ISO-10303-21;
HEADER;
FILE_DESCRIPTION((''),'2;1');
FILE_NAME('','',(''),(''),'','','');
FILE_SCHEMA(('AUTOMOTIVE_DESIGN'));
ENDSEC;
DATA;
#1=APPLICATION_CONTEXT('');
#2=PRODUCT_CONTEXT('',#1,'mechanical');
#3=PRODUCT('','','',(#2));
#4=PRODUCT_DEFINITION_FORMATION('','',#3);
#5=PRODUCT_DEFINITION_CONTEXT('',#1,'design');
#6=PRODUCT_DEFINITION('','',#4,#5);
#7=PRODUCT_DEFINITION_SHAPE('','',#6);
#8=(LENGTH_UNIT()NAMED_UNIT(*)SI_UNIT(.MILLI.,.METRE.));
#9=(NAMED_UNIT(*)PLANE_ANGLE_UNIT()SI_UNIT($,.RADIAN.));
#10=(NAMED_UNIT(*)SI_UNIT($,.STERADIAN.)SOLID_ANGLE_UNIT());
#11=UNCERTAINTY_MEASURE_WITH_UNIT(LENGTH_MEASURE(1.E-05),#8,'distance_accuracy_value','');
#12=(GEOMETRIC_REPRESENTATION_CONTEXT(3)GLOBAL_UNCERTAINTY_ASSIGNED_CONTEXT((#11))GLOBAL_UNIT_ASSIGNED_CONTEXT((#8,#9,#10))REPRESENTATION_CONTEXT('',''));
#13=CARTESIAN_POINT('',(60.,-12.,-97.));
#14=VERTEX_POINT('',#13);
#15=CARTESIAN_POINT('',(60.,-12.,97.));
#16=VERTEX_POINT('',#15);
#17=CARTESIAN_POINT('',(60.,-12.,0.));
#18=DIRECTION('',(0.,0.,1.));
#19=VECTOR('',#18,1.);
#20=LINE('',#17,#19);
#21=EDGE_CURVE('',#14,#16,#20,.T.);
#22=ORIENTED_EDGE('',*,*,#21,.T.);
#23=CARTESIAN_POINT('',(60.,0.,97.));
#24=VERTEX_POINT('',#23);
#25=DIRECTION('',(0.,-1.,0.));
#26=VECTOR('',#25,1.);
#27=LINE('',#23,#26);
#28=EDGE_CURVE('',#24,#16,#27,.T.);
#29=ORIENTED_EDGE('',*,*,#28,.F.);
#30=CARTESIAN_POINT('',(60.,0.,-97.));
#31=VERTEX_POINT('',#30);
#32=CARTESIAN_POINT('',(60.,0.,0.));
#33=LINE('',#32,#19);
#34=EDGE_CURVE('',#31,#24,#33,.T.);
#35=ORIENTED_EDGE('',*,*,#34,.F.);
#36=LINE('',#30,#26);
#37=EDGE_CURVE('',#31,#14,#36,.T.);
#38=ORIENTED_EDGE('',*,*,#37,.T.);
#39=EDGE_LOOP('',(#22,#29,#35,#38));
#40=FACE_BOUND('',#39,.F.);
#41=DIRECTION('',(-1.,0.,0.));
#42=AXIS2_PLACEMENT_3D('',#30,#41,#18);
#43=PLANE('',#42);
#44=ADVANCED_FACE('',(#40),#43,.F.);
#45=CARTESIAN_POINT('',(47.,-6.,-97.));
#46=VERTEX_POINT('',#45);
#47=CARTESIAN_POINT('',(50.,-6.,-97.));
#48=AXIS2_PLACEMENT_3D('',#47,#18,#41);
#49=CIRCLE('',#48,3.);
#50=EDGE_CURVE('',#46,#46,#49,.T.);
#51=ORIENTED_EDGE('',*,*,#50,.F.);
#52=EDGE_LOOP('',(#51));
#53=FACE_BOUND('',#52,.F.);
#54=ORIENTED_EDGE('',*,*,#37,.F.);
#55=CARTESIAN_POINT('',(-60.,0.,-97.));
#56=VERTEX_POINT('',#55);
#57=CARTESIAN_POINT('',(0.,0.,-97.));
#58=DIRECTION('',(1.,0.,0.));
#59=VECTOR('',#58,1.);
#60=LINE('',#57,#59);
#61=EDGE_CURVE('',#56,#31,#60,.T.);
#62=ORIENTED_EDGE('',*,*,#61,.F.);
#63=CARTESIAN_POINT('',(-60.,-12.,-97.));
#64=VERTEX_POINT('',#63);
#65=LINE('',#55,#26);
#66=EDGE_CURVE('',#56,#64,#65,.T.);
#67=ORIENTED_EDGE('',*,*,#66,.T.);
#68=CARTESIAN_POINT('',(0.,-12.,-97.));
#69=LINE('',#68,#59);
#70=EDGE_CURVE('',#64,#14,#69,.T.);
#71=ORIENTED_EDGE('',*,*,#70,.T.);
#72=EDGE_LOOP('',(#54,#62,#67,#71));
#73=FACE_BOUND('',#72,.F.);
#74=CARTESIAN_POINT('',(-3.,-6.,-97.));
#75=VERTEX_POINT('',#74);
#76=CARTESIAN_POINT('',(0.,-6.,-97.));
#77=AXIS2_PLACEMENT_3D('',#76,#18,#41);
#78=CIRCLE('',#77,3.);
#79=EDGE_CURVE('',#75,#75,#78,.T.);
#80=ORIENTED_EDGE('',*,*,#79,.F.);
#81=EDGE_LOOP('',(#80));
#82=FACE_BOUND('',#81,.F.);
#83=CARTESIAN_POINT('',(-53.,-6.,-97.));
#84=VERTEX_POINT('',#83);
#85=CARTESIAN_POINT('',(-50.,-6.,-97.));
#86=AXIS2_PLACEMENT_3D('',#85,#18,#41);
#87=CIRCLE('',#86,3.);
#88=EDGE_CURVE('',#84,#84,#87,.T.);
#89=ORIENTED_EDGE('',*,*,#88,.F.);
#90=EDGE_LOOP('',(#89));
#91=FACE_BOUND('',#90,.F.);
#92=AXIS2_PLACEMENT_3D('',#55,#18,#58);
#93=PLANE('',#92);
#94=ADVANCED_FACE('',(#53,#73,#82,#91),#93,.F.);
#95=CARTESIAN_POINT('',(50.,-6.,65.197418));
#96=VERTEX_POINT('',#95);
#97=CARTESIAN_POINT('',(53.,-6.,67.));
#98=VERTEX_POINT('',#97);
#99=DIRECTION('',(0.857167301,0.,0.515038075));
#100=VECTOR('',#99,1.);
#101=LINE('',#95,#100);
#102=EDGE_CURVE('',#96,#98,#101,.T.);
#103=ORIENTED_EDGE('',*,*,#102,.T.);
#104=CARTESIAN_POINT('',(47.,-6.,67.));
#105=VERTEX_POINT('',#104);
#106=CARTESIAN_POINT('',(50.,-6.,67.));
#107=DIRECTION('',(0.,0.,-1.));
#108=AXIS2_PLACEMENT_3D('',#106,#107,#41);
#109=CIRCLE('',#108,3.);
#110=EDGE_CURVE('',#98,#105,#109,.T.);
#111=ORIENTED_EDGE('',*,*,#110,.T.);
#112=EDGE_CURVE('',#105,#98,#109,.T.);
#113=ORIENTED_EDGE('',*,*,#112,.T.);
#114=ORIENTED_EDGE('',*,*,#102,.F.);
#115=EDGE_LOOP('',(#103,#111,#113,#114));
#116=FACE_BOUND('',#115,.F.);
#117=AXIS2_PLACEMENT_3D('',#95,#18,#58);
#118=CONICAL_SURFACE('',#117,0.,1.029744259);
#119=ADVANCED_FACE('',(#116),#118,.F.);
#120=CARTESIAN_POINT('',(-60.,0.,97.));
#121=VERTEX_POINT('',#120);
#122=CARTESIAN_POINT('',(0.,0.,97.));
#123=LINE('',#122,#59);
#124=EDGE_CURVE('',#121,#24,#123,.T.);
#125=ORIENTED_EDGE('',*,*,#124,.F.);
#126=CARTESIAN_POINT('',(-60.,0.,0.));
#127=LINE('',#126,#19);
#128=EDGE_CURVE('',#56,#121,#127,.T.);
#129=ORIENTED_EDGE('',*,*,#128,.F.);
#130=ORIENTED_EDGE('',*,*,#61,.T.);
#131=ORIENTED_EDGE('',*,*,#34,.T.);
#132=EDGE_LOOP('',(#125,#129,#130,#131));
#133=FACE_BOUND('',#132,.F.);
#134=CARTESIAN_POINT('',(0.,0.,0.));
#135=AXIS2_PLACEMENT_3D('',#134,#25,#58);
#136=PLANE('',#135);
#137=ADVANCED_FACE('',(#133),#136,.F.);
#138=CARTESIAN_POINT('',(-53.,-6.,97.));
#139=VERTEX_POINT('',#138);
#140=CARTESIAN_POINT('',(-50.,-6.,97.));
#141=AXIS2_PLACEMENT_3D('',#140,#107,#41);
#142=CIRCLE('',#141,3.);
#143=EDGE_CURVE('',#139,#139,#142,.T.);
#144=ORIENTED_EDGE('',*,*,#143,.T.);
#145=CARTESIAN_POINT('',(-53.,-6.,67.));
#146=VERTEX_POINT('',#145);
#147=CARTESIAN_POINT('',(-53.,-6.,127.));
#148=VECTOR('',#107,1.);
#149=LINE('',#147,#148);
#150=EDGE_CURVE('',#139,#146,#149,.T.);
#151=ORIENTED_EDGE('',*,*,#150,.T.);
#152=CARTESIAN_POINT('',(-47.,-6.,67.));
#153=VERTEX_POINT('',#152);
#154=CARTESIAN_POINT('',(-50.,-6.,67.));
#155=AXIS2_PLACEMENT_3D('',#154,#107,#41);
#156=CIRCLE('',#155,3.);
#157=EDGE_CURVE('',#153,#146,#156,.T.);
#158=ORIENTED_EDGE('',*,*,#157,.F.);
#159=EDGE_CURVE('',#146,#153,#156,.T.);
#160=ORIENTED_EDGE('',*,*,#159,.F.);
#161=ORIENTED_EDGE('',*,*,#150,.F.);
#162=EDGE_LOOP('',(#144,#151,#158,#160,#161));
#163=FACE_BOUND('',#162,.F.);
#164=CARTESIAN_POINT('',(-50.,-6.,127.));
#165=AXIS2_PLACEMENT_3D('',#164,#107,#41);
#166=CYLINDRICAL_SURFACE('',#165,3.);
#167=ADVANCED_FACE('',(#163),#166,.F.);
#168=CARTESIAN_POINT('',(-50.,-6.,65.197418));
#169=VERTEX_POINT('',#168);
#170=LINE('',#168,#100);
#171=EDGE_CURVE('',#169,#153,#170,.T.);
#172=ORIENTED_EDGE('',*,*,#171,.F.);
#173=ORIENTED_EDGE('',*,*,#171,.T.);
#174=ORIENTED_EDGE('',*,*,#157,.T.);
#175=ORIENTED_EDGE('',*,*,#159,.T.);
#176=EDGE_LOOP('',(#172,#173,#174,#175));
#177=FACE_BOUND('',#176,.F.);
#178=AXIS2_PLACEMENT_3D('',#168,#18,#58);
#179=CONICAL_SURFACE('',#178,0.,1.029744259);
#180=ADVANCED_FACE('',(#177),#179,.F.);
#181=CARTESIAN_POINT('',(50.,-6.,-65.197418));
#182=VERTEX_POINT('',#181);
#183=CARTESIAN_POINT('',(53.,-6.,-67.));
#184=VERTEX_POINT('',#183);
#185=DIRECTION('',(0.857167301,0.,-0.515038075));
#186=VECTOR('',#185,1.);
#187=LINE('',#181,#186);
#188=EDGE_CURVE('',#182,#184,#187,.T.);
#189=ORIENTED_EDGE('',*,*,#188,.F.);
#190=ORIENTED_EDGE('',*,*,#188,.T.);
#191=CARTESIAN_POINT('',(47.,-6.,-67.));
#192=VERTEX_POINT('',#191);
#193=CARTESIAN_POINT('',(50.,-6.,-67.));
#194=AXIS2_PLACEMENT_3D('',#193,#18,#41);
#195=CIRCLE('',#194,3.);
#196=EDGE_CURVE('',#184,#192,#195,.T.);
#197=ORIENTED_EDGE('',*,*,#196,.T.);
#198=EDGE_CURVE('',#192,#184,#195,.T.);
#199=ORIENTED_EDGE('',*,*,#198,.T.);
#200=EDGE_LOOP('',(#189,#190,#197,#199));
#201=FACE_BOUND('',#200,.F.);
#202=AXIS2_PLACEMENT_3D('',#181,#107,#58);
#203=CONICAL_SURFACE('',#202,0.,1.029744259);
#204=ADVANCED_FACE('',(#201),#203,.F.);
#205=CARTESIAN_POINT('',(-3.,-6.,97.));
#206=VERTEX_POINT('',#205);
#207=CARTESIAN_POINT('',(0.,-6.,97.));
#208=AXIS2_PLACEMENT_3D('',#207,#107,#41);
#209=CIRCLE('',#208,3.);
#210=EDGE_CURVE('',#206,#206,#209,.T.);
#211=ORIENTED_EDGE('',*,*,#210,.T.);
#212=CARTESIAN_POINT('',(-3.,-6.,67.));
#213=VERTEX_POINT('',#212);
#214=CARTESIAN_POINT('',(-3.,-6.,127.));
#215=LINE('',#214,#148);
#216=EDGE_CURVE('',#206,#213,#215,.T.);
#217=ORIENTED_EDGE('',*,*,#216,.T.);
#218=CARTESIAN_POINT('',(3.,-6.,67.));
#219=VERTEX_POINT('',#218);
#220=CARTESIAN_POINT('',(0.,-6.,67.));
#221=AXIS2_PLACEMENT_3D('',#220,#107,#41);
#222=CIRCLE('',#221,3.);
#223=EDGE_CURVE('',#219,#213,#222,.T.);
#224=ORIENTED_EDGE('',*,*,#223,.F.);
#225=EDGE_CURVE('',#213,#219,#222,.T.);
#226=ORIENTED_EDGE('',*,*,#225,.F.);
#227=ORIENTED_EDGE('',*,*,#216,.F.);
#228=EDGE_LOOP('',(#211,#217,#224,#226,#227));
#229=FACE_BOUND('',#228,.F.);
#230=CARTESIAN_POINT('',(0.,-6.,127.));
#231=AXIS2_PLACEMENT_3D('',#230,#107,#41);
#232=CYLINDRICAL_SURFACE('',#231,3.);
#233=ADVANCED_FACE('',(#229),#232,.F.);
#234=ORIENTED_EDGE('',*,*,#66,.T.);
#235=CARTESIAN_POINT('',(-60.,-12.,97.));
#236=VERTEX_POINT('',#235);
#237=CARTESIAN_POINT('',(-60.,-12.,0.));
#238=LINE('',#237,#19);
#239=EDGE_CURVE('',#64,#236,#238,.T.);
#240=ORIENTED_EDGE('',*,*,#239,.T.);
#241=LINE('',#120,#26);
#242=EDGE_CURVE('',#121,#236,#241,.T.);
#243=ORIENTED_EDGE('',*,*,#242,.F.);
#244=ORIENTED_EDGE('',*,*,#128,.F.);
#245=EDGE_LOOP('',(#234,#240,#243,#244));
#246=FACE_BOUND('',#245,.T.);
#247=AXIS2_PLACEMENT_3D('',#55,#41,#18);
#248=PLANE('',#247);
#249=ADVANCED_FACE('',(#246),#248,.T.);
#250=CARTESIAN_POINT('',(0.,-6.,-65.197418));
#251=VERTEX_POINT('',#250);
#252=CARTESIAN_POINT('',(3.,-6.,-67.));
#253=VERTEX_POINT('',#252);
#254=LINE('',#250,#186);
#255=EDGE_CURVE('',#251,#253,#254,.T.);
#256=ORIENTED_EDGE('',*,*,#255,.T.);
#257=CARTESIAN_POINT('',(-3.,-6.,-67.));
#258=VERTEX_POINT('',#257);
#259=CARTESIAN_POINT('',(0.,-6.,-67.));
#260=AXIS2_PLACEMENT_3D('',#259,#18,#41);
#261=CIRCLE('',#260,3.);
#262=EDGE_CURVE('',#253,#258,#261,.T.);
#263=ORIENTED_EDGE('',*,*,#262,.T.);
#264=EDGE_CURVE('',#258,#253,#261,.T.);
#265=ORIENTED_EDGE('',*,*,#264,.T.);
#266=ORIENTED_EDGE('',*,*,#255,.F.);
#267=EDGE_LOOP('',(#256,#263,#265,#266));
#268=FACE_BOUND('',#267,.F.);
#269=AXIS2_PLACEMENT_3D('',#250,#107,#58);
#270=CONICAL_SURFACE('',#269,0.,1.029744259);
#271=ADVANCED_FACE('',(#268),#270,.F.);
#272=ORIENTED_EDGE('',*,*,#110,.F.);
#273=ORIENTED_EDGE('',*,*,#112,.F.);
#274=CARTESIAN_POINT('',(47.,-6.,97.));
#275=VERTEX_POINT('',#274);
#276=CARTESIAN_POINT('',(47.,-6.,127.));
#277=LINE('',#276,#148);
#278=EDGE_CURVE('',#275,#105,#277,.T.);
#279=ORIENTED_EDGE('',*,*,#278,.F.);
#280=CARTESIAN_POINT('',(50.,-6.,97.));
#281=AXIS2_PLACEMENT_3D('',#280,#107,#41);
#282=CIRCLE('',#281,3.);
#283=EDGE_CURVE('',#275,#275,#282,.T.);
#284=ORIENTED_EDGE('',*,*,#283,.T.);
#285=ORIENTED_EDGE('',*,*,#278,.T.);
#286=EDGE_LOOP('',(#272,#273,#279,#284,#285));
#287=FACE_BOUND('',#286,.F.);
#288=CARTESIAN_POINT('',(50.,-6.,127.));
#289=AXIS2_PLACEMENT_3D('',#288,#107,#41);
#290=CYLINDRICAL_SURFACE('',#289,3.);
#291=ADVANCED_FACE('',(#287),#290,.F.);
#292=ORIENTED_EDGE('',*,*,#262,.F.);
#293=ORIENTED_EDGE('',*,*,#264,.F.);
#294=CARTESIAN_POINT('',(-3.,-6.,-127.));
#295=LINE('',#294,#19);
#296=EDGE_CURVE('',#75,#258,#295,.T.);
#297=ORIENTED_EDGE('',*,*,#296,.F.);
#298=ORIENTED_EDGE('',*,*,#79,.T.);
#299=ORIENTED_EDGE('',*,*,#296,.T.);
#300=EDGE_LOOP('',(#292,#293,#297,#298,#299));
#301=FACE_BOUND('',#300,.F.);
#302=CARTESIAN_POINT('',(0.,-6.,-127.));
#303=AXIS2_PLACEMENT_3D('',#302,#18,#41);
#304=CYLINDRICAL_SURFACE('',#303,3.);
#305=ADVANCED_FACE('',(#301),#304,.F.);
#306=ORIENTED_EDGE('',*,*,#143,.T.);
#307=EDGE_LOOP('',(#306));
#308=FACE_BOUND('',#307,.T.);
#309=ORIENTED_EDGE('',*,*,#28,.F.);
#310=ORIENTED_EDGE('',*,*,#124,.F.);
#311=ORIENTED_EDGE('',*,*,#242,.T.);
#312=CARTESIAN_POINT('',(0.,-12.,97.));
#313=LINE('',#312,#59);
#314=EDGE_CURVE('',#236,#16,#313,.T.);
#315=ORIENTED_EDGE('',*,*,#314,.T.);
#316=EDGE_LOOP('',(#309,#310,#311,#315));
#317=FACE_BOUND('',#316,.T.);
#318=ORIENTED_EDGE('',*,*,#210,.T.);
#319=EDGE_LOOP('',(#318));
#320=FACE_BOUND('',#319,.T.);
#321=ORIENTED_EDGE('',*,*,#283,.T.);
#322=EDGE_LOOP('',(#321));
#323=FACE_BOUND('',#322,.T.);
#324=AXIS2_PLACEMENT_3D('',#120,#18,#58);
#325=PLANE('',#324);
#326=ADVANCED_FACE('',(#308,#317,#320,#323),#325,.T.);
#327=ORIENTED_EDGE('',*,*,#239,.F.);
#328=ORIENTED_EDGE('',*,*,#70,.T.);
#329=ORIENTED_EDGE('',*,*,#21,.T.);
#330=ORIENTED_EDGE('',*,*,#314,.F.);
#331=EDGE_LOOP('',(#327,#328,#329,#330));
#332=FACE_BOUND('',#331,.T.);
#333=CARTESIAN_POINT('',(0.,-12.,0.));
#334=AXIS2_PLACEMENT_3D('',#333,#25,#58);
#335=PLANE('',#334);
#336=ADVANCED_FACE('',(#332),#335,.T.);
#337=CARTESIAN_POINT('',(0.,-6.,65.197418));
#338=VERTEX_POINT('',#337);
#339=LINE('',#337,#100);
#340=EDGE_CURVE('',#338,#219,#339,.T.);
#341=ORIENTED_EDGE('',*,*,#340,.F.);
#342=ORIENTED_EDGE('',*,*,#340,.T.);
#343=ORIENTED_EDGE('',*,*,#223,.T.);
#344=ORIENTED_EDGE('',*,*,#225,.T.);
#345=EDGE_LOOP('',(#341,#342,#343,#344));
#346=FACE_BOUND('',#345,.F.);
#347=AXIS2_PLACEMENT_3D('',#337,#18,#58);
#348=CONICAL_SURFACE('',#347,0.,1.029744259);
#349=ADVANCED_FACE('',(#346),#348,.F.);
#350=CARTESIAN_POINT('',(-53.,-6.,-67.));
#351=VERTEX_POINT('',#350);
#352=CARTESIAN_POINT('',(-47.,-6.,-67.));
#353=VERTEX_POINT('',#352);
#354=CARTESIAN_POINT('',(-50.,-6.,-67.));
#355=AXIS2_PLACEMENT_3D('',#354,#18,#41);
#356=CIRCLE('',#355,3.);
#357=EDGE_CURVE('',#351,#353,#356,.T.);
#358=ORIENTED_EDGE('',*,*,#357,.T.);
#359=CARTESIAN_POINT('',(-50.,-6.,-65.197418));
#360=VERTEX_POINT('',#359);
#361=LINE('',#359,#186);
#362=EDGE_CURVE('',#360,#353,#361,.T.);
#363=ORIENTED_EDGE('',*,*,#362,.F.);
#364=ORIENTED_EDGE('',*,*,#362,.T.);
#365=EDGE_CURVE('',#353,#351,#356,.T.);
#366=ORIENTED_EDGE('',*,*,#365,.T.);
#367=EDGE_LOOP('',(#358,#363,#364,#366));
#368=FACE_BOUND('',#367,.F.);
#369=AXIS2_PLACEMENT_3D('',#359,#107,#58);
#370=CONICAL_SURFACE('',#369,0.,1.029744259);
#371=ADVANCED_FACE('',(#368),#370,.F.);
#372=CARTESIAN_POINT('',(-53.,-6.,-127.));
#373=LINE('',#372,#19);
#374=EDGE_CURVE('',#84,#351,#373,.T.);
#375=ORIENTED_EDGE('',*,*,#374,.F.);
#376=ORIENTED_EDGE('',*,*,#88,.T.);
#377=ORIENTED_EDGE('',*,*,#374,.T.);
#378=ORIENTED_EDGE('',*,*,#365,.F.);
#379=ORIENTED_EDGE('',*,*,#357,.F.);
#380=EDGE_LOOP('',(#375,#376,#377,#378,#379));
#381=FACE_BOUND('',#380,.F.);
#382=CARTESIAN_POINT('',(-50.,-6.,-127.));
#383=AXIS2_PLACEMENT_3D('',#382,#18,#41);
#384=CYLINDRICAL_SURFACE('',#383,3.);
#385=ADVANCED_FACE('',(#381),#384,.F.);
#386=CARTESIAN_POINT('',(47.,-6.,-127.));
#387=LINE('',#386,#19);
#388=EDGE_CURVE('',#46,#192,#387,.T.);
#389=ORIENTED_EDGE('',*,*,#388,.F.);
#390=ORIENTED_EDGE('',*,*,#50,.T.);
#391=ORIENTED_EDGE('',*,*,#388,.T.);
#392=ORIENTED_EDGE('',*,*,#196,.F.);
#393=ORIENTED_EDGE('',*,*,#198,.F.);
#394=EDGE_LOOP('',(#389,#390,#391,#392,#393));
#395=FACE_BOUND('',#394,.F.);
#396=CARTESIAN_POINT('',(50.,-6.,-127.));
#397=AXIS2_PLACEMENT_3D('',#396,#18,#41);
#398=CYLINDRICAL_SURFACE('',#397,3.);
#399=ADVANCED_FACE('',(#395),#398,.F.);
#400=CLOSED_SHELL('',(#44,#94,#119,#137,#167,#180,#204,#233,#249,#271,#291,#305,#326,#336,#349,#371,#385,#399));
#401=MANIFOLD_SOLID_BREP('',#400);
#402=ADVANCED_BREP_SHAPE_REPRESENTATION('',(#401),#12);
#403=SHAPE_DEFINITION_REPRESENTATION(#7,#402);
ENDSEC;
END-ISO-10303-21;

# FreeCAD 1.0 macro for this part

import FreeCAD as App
import Part
import Sketcher
from FreeCAD import Vector

doc = App.newDocument("Part")
body = doc.addObject("PartDesign::Body", "Body")

# Sketch on XZ plane
sketch1 = body.newObject("Sketcher::SketchObject", "Sketch")
sketch1.AttachmentSupport = (doc.getObject("XZ_Plane"), [""])
sketch1.MapMode = "FlatFace"
sketch1.addGeometry([
    Part.LineSegment(Vector(-60, 97, 0), Vector(-60, -97, 0)),
    Part.LineSegment(Vector(-60, -97, 0), Vector(60, -97, 0)),
    Part.LineSegment(Vector(60, -97, 0), Vector(60, 97, 0)),
    Part.LineSegment(Vector(60, 97, 0), Vector(-60, 97, 0)),
], False)
sketch1.addConstraint([
    Sketcher.Constraint("Coincident", 0, 2, 1, 1),
    Sketcher.Constraint("Coincident", 1, 2, 2, 1),
    Sketcher.Constraint("Coincident", 2, 2, 3, 1),
    Sketcher.Constraint("Coincident", 3, 2, 0, 1),
    Sketcher.Constraint("Vertical", 0),
    Sketcher.Constraint("Horizontal", 1),
    Sketcher.Constraint("Vertical", 2),
    Sketcher.Constraint("Horizontal", 3),
    Sketcher.Constraint("Symmetric", 0, 2, 2, 2, -1, 1),
    Sketcher.Constraint("DistanceX", 1, 1, 1, 2, 120.0),
    Sketcher.Constraint("DistanceY", 0, 2, 0, 1, 194.0),
])
pad1 = body.newObject("PartDesign::Pad", "Pad")
pad1.Profile = sketch1
pad1.Length = 12

# Sketch on XY plane
sketch2 = body.newObject("Sketcher::SketchObject", "Sketch001")
sketch2.AttachmentSupport = (doc.getObject("XY_Plane"), [""])
sketch2.MapMode = "FlatFace"
sketch2.AttachmentOffset = App.Placement(Vector(0, 0, 97), App.Rotation())
sketch2.addGeometry([
    Part.Circle(Vector(-50, -6, 0), Vector(0, 0, 1), 3),
    Part.Circle(Vector(0, -6, 0), Vector(0, 0, 1), 3),
    Part.Circle(Vector(50, -6, 0), Vector(0, 0, 1), 3),
], False)
sketch2.addConstraint([
    Sketcher.Constraint("Equal", 0, 1),
    Sketcher.Constraint("Equal", 1, 2),
    Sketcher.Constraint("Symmetric", 0, 3, 2, 3, -2),
    Sketcher.Constraint("PointOnObject", 1, 3, -2),
    Sketcher.Constraint("Horizontal", 0, 3, 1, 3),
    Sketcher.Constraint("Diameter", 0, 6.0),
    Sketcher.Constraint("DistanceX", 0, 3, -1, 1, 50.0),
    Sketcher.Constraint("DistanceY", 0, 3, -1, 1, 6.0),
])
doc.recompute()
hole = body.newObject("PartDesign::Hole", "Hole")
hole.Profile = sketch2
hole.ThreadType = "None"
hole.Diameter = 6
hole.DepthType = "Dimension"
hole.Depth = 30
hole.DrillPoint = "Angled"
hole.DrillPointAngle = 118

# Sketch on XY plane
sketch3 = body.newObject("Sketcher::SketchObject", "Sketch002")
sketch3.AttachmentSupport = (doc.getObject("XY_Plane"), [""])
sketch3.MapMode = "FlatFace"
sketch3.AttachmentOffset = App.Placement(Vector(0, 0, -97), App.Rotation())
sketch3.addGeometry([
    Part.Circle(Vector(-50, -6, 0), Vector(0, 0, 1), 3),
    Part.Circle(Vector(0, -6, 0), Vector(0, 0, 1), 3),
    Part.Circle(Vector(50, -6, 0), Vector(0, 0, 1), 3),
], False)
sketch3.addConstraint([
    Sketcher.Constraint("Equal", 0, 1),
    Sketcher.Constraint("Equal", 1, 2),
    Sketcher.Constraint("Symmetric", 0, 3, 2, 3, -2),
    Sketcher.Constraint("PointOnObject", 1, 3, -2),
    Sketcher.Constraint("Horizontal", 0, 3, 1, 3),
    Sketcher.Constraint("Diameter", 0, 6.0),
    Sketcher.Constraint("DistanceX", 0, 3, -1, 1, 50.0),
    Sketcher.Constraint("DistanceY", 0, 3, -1, 1, 6.0),
])
doc.recompute()
hole2 = body.newObject("PartDesign::Hole", "Hole001")
hole2.Profile = sketch3
hole2.ThreadType = "None"
hole2.Diameter = 6
hole2.DepthType = "Dimension"
hole2.Depth = 30
hole2.DrillPoint = "Angled"
hole2.DrillPointAngle = 118
hole2.Reversed = True

doc.recompute()
